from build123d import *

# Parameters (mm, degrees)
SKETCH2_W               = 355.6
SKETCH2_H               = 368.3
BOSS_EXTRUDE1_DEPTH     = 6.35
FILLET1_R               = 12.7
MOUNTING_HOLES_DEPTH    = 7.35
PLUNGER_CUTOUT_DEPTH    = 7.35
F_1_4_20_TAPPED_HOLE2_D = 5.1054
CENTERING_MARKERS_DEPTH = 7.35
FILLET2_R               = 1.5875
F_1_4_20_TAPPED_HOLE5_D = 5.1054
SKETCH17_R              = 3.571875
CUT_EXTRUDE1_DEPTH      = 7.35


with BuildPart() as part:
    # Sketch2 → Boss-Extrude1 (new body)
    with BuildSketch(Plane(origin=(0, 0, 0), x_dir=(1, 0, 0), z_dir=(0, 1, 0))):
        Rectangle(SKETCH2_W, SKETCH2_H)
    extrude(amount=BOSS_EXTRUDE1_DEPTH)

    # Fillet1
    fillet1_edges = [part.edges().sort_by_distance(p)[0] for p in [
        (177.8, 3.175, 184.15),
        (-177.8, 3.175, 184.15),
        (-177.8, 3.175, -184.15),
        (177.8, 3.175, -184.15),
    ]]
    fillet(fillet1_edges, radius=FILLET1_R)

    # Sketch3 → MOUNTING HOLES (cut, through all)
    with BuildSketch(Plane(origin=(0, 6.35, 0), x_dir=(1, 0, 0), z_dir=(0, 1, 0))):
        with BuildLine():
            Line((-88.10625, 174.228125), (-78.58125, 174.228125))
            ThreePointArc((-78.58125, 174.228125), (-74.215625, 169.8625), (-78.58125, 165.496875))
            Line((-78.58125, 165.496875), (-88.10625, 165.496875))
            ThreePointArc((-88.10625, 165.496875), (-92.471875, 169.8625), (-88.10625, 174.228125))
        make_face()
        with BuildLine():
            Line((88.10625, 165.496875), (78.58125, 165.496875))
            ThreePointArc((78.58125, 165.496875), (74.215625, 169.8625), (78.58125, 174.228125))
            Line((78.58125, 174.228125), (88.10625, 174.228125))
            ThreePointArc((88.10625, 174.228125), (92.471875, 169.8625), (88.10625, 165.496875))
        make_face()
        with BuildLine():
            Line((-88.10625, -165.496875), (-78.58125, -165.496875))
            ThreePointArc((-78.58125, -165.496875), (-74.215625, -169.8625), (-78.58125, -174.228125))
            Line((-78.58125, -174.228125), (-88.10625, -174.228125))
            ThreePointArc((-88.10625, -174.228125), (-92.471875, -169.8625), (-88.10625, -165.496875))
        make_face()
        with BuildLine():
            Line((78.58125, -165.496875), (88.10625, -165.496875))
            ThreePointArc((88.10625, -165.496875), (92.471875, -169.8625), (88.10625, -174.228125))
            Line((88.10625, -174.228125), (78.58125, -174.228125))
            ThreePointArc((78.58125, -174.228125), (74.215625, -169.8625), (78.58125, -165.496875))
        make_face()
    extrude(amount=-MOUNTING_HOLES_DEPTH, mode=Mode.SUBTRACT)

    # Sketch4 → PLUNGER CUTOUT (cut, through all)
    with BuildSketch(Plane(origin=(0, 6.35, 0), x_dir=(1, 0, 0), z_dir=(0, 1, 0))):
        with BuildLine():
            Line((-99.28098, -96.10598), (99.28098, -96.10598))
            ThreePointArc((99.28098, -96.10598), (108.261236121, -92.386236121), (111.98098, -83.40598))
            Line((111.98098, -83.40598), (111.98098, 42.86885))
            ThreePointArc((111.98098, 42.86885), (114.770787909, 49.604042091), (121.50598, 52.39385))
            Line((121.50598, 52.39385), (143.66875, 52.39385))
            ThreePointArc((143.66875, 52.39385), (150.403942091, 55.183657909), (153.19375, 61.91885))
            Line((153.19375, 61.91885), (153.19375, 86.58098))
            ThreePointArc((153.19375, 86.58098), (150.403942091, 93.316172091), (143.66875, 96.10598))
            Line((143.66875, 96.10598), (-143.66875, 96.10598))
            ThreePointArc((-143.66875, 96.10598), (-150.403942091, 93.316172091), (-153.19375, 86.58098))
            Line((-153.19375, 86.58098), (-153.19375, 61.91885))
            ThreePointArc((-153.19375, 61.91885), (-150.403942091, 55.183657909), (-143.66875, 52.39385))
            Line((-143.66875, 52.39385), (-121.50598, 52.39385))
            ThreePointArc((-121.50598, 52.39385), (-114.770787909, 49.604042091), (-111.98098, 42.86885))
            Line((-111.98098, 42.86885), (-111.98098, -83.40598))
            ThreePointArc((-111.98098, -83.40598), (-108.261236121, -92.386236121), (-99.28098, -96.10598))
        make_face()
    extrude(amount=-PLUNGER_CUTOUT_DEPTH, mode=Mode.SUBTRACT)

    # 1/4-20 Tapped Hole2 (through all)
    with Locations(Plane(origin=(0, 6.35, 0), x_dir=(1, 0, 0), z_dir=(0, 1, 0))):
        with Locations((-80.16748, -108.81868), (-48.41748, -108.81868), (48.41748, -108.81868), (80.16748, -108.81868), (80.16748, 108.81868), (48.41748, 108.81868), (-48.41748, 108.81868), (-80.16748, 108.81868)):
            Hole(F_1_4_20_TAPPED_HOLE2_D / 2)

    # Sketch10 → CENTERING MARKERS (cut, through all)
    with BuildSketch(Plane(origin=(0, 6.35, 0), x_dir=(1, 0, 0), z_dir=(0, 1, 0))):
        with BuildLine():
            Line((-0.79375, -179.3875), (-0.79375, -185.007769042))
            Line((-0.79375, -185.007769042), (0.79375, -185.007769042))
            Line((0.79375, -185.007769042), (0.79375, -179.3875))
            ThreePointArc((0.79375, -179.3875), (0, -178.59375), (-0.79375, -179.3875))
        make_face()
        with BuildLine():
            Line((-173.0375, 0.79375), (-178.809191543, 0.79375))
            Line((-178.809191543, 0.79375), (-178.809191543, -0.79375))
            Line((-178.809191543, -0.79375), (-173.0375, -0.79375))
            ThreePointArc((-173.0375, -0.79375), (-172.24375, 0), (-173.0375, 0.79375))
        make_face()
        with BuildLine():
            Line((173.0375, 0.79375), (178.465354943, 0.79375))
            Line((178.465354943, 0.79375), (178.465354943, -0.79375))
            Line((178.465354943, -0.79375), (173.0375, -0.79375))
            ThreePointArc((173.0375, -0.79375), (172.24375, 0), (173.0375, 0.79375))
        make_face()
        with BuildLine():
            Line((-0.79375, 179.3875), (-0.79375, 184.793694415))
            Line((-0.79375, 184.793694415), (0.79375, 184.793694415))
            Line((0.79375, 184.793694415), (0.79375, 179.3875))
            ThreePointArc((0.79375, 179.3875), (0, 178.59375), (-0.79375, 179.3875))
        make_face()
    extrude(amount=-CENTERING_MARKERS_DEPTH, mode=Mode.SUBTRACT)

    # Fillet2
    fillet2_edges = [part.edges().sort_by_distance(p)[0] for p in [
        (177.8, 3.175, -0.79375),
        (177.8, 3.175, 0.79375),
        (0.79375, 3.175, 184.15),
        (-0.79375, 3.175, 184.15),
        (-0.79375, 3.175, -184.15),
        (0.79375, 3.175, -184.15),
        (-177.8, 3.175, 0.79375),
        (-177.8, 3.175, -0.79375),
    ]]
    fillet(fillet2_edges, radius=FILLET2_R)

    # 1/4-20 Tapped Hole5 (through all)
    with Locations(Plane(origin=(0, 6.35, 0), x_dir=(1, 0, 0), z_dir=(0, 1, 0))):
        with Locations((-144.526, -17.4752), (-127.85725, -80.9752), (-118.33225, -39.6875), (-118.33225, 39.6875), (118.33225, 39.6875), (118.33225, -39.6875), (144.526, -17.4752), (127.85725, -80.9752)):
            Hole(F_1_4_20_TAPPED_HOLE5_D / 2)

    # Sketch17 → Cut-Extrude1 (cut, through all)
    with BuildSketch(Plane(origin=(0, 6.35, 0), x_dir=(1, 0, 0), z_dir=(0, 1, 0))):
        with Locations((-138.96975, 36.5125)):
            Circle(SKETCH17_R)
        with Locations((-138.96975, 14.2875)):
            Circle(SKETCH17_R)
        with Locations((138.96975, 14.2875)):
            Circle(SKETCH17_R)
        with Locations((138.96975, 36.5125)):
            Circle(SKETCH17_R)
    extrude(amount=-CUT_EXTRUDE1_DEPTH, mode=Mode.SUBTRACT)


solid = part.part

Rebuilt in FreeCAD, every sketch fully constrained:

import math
import FreeCAD as App
import Part
import Sketcher
Q = App.Units.Quantity


def edges_at(feature, points):
    """Names of the edges that pass closest to the given points."""
    edges = feature.Shape.Edges
    near = lambda p: min(range(len(edges)), key=lambda i: edges[i].distToShape(Part.Vertex(*p))[0])
    return sorted({f"Edge{near(p) + 1}" for p in points})

doc = App.newDocument("Part")
params = doc.addObject("Spreadsheet::Sheet", "Params")
for row, (alias, value) in enumerate([
    ("sketch1_width", "14 in"),
    ("sketch1_height", "14.5 in"),
    ("pad1_length", "0.25 in"),
    ("fillet_radius", "0.5 in"),
    ("sketch2_radius", "0.171875 in"),
    ("sketch2_width", "0.375 in"),
    ("sketch3_radius", "0.5 in"),
    ("sketch3_radius2", "0.375 in"),
    ("sketch3_width", "11.3125 in"),
    ("sketch4_diameter", "0.201 in"),
    ("hole_diameter", "0.201 in"),
    ("sketch5_radius", "0.03125 in"),
    ("fillet2_radius", "0.0625 in"),
    ("sketch6_diameter", "0.201 in"),
    ("hole2_diameter", "0.201 in"),
    ("sketch7_diameter", "0.28125 in"),
], start=1):
    params.set(f"A{row}", alias)
    params.set(f"B{row}", "=" + value)
    params.setAlias(f"B{row}", alias)

body = doc.addObject("PartDesign::Body", "Body")

# Sketch on XZ plane
sketch1 = body.newObject("Sketcher::SketchObject", "Sketch")
sketch1.AttachmentSupport = (doc.getObject("XZ_Plane"), [""])
sketch1.MapMode = "FlatFace"
sketch1.addGeometry([
    Part.LineSegment(App.Vector(-178, -184, 0), App.Vector(-178, 184, 0)),
    Part.LineSegment(App.Vector(-178, 184, 0), App.Vector(178, 184, 0)),
    Part.LineSegment(App.Vector(178, 184, 0), App.Vector(178, -184, 0)),
    Part.LineSegment(App.Vector(178, -184, 0), App.Vector(-178, -184, 0)),
], False)
sketch1.addConstraint([
    Sketcher.Constraint("Coincident", 0, 2, 1, 1),
    Sketcher.Constraint("Coincident", 1, 2, 2, 1),
    Sketcher.Constraint("Coincident", 2, 2, 3, 1),
    Sketcher.Constraint("Coincident", 3, 2, 0, 1),
    Sketcher.Constraint("Vertical", 0),
    Sketcher.Constraint("Horizontal", 1),
    Sketcher.Constraint("Vertical", 2),
    Sketcher.Constraint("Horizontal", 3),
    Sketcher.Constraint("Symmetric", 0, 2, 2, 2, -1, 1),
    Sketcher.Constraint("DistanceX", 1, 1, 1, 2, Q("14 in")),
    Sketcher.Constraint("DistanceY", 0, 1, 0, 2, Q("14.5 in")),
])
sketch1.setExpression("Constraints[9]", "Params.sketch1_width")
sketch1.setExpression("Constraints[10]", "Params.sketch1_height")
pad1 = body.newObject("PartDesign::Pad", "Pad")
pad1.Profile = sketch1
pad1.setExpression("Length", "Params.pad1_length")
pad1.Reversed = True
doc.recompute()

fillet = body.newObject("PartDesign::Fillet", "Fillet")
fillet.Base = (pad1, edges_at(pad1, [
    (177.8, 3.175, 184.15),
    (-177.8, 3.175, 184.15),
    (-177.8, 3.175, -184.15),
    (177.8, 3.175, -184.15),
]))
fillet.setExpression("Radius", "Params.fillet_radius")

# Sketch on XZ plane
sketch2 = body.newObject("Sketcher::SketchObject", "Sketch001")
sketch2.AttachmentSupport = (doc.getObject("XZ_Plane"), [""])
sketch2.MapMode = "FlatFace"
sketch2.AttachmentOffset = App.Placement(App.Vector(0, 0, -0.25 * 25.4), App.Rotation())
sketch2.addGeometry([
    Part.LineSegment(App.Vector(-78.6, -174.2, 0), App.Vector(-88.1, -174.2, 0)),  # 0
    Part.ArcOfCircle(Part.Circle(App.Vector(-88.1, -169.9, 0), App.Vector(0, 0, 1), 4.4), math.radians(90), math.radians(270)),  # 1
    Part.LineSegment(App.Vector(-88.1, -165.5, 0), App.Vector(-78.6, -165.5, 0)),  # 2
    Part.ArcOfCircle(Part.Circle(App.Vector(-78.6, -169.9, 0), App.Vector(0, 0, 1), 4.4), math.radians(-90), math.radians(90)),  # 3
    Part.LineSegment(App.Vector(78.6, -165.5, 0), App.Vector(88.1, -165.5, 0)),  # 4
    Part.ArcOfCircle(Part.Circle(App.Vector(88.1, -169.9, 0), App.Vector(0, 0, 1), 4.4), math.radians(-90), math.radians(90)),  # 5
    Part.LineSegment(App.Vector(88.1, -174.2, 0), App.Vector(78.6, -174.2, 0)),  # 6
    Part.ArcOfCircle(Part.Circle(App.Vector(78.6, -169.9, 0), App.Vector(0, 0, 1), 4.4), math.radians(90), math.radians(270)),  # 7
    Part.LineSegment(App.Vector(-78.6, 165.5, 0), App.Vector(-88.1, 165.5, 0)),  # 8
    Part.ArcOfCircle(Part.Circle(App.Vector(-88.1, 169.9, 0), App.Vector(0, 0, 1), 4.4), math.radians(90), math.radians(270)),  # 9
    Part.LineSegment(App.Vector(-88.1, 174.2, 0), App.Vector(-78.6, 174.2, 0)),  # 10
    Part.ArcOfCircle(Part.Circle(App.Vector(-78.6, 169.9, 0), App.Vector(0, 0, 1), 4.4), math.radians(-90), math.radians(90)),  # 11
    Part.LineSegment(App.Vector(88.1, 165.5, 0), App.Vector(78.6, 165.5, 0)),  # 12
    Part.ArcOfCircle(Part.Circle(App.Vector(78.6, 169.9, 0), App.Vector(0, 0, 1), 4.4), math.radians(90), math.radians(270)),  # 13
    Part.LineSegment(App.Vector(78.6, 174.2, 0), App.Vector(88.1, 174.2, 0)),  # 14
    Part.ArcOfCircle(Part.Circle(App.Vector(88.1, 169.9, 0), App.Vector(0, 0, 1), 4.4), math.radians(-90), math.radians(90)),  # 15
], False)
sketch2.addConstraint([
    Sketcher.Constraint("Tangent", 0, 2, 1, 2),
    Sketcher.Constraint("Tangent", 1, 1, 2, 1),
    Sketcher.Constraint("Tangent", 2, 2, 3, 2),
    Sketcher.Constraint("Tangent", 3, 1, 0, 1),
    Sketcher.Constraint("Tangent", 4, 2, 5, 2),
    Sketcher.Constraint("Tangent", 5, 1, 6, 1),
    Sketcher.Constraint("Tangent", 6, 2, 7, 2),
    Sketcher.Constraint("Tangent", 7, 1, 4, 1),
    Sketcher.Constraint("Tangent", 8, 2, 9, 2),
    Sketcher.Constraint("Tangent", 9, 1, 10, 1),
    Sketcher.Constraint("Tangent", 10, 2, 11, 2),
    Sketcher.Constraint("Tangent", 11, 1, 8, 1),
    Sketcher.Constraint("Tangent", 12, 2, 13, 2),
    Sketcher.Constraint("Tangent", 13, 1, 14, 1),
    Sketcher.Constraint("Tangent", 14, 2, 15, 2),
    Sketcher.Constraint("Tangent", 15, 1, 12, 1),
    Sketcher.Constraint("Horizontal", 0),
    Sketcher.Constraint("Horizontal", 2),
    Sketcher.Constraint("Horizontal", 4),
    Sketcher.Constraint("Horizontal", 6),
    Sketcher.Constraint("Horizontal", 8),
    Sketcher.Constraint("Horizontal", 10),
    Sketcher.Constraint("Horizontal", 12),
    Sketcher.Constraint("Horizontal", 14),
    Sketcher.Constraint("Equal", 3, 5),
    Sketcher.Constraint("Equal", 7, 9),
    Sketcher.Constraint("Equal", 11, 13),
    Sketcher.Constraint("Symmetric", 5, 3, 9, 3, -1, 1),
    Sketcher.Constraint("Symmetric", 3, 3, 13, 3, -1, 1),
    Sketcher.Constraint("Symmetric", 1, 3, 5, 3, -2),
    Sketcher.Constraint("Vertical", 3, 3, 11, 3),
    Sketcher.Constraint("Vertical", 7, 3, 13, 3),
    Sketcher.Constraint("Vertical", 5, 3, 15, 3),
    Sketcher.Constraint("Radius", 1, Q("0.171875 in")),
    Sketcher.Constraint("DistanceX", 0, 2, 0, 1, Q("0.375 in")),
    Sketcher.Constraint("DistanceX", 1, 3, -1, 1, Q("3.46875 in")),
    Sketcher.Constraint("DistanceY", 1, 3, -1, 1, Q("6.6875 in")),
])
sketch2.setExpression("Constraints[33]", "Params.sketch2_radius")
sketch2.setExpression("Constraints[34]", "Params.sketch2_width")
pocket1 = body.newObject("PartDesign::Pocket", "Pocket")
pocket1.Profile = sketch2
pocket1.Type = "ThroughAll"
pocket1.Reversed = True

# Sketch on XZ plane
sketch3 = body.newObject("Sketcher::SketchObject", "Sketch002")
sketch3.AttachmentSupport = (doc.getObject("XZ_Plane"), [""])
sketch3.MapMode = "FlatFace"
sketch3.AttachmentOffset = App.Placement(App.Vector(0, 0, -0.25 * 25.4), App.Rotation())
sketch3.addGeometry([
    Part.LineSegment(App.Vector(-99, 96, 0), App.Vector(99, 96, 0)),  # 0
    Part.ArcOfCircle(Part.Circle(App.Vector(99, 83, 0), App.Vector(0, 0, 1), 13), math.radians(0), math.radians(90)),  # 1
    Part.LineSegment(App.Vector(112, 83, 0), App.Vector(112, -43, 0)),  # 2
    Part.ArcOfCircle(Part.Circle(App.Vector(122, -43, 0), App.Vector(0, 0, 1), 10), math.radians(180), math.radians(270)),  # 3
    Part.LineSegment(App.Vector(122, -52, 0), App.Vector(144, -52, 0)),  # 4
    Part.ArcOfCircle(Part.Circle(App.Vector(144, -62, 0), App.Vector(0, 0, 1), 10), math.radians(0), math.radians(90)),  # 5
    Part.LineSegment(App.Vector(153, -62, 0), App.Vector(153, -87, 0)),  # 6
    Part.ArcOfCircle(Part.Circle(App.Vector(144, -87, 0), App.Vector(0, 0, 1), 10), math.radians(-90), math.radians(0)),  # 7
    Part.LineSegment(App.Vector(144, -96, 0), App.Vector(-144, -96, 0)),  # 8
    Part.ArcOfCircle(Part.Circle(App.Vector(-144, -87, 0), App.Vector(0, 0, 1), 10), math.radians(180), math.radians(270)),  # 9
    Part.LineSegment(App.Vector(-153, -87, 0), App.Vector(-153, -62, 0)),  # 10
    Part.ArcOfCircle(Part.Circle(App.Vector(-144, -62, 0), App.Vector(0, 0, 1), 10), math.radians(90), math.radians(180)),  # 11
    Part.LineSegment(App.Vector(-144, -52, 0), App.Vector(-122, -52, 0)),  # 12
    Part.ArcOfCircle(Part.Circle(App.Vector(-122, -43, 0), App.Vector(0, 0, 1), 10), math.radians(-90), math.radians(0)),  # 13
    Part.LineSegment(App.Vector(-112, -43, 0), App.Vector(-112, 83, 0)),  # 14
    Part.ArcOfCircle(Part.Circle(App.Vector(-99, 83, 0), App.Vector(0, 0, 1), 13), math.radians(90), math.radians(180)),  # 15
], False)
sketch3.addConstraint([
    Sketcher.Constraint("Tangent", 0, 2, 1, 2),
    Sketcher.Constraint("Tangent", 1, 1, 2, 1),
    Sketcher.Constraint("Tangent", 2, 2, 3, 1),
    Sketcher.Constraint("Tangent", 3, 2, 4, 1),
    Sketcher.Constraint("Tangent", 4, 2, 5, 2),
    Sketcher.Constraint("Tangent", 5, 1, 6, 1),
    Sketcher.Constraint("Tangent", 6, 2, 7, 2),
    Sketcher.Constraint("Tangent", 7, 1, 8, 1),
    Sketcher.Constraint("Tangent", 8, 2, 9, 2),
    Sketcher.Constraint("Tangent", 9, 1, 10, 1),
    Sketcher.Constraint("Tangent", 10, 2, 11, 2),
    Sketcher.Constraint("Tangent", 11, 1, 12, 1),
    Sketcher.Constraint("Tangent", 12, 2, 13, 1),
    Sketcher.Constraint("Tangent", 13, 2, 14, 1),
    Sketcher.Constraint("Tangent", 14, 2, 15, 2),
    Sketcher.Constraint("Tangent", 15, 1, 0, 1),
    Sketcher.Constraint("Horizontal", 0),
    Sketcher.Constraint("Vertical", 2),
    Sketcher.Constraint("Horizontal", 4),
    Sketcher.Constraint("Vertical", 6),
    Sketcher.Constraint("Horizontal", 8),
    Sketcher.Constraint("Vertical", 10),
    Sketcher.Constraint("Horizontal", 12),
    Sketcher.Constraint("Vertical", 14),
    Sketcher.Constraint("Equal", 3, 5),
    Sketcher.Constraint("Equal", 5, 7),
    Sketcher.Constraint("Equal", 7, 9),
    Sketcher.Constraint("Equal", 9, 11),
    Sketcher.Constraint("Equal", 11, 13),
    Sketcher.Constraint("Equal", 1, 15),
    Sketcher.Constraint("Symmetric", 5, 3, 11, 3, -2),
    Sketcher.Constraint("Equal", 4, 12),
    Sketcher.Constraint("Radius", 1, Q("0.5 in")),
    Sketcher.Constraint("Radius", 3, Q("0.375 in")),
    Sketcher.Constraint("DistanceX", 8, 2, 8, 1, Q("11.3125 in")),
    Sketcher.Constraint("DistanceX", 0, 1, 0, 2, Q("7.8174 in")),
    Sketcher.Constraint("DistanceY", -1, 1, 1, 3, Q("3.2837 in")),
    Sketcher.Constraint("DistanceY", 7, 3, -1, 1, Q("3.4087 in")),
    Sketcher.Constraint("DistanceY", 2, 2, 2, 1, 126.27483),
])
sketch3.setExpression("Constraints[32]", "Params.sketch3_radius")
sketch3.setExpression("Constraints[33]", "Params.sketch3_radius2")
sketch3.setExpression("Constraints[34]", "Params.sketch3_width")
pocket2 = body.newObject("PartDesign::Pocket", "Pocket001")
pocket2.Profile = sketch3
pocket2.Type = "ThroughAll"
pocket2.Reversed = True

# Sketch on XZ plane
sketch4 = body.newObject("Sketcher::SketchObject", "Sketch003")
sketch4.AttachmentSupport = (doc.getObject("XZ_Plane"), [""])
sketch4.MapMode = "FlatFace"
sketch4.AttachmentOffset = App.Placement(App.Vector(0, 0, -0.25 * 25.4), App.Rotation())
sketch4.addGeometry([
    Part.Circle(App.Vector(-80.2, 108.8, 0), App.Vector(0, 0, 1), 2.6),  # 0
    Part.Circle(App.Vector(-48.4, 108.8, 0), App.Vector(0, 0, 1), 2.6),  # 1
    Part.Circle(App.Vector(48.4, 108.8, 0), App.Vector(0, 0, 1), 2.6),  # 2
    Part.Circle(App.Vector(80.2, 108.8, 0), App.Vector(0, 0, 1), 2.6),  # 3
    Part.Circle(App.Vector(80.2, -108.8, 0), App.Vector(0, 0, 1), 2.6),  # 4
    Part.Circle(App.Vector(48.4, -108.8, 0), App.Vector(0, 0, 1), 2.6),  # 5
    Part.Circle(App.Vector(-48.4, -108.8, 0), App.Vector(0, 0, 1), 2.6),  # 6
    Part.Circle(App.Vector(-80.2, -108.8, 0), App.Vector(0, 0, 1), 2.6),  # 7
], False)
sketch4.addConstraint([
    Sketcher.Constraint("Equal", 0, 1),
    Sketcher.Constraint("Equal", 1, 2),
    Sketcher.Constraint("Equal", 2, 3),
    Sketcher.Constraint("Equal", 3, 4),
    Sketcher.Constraint("Equal", 4, 5),
    Sketcher.Constraint("Equal", 5, 6),
    Sketcher.Constraint("Equal", 6, 7),
    Sketcher.Constraint("Symmetric", 0, 3, 4, 3, -1, 1),
    Sketcher.Constraint("Symmetric", 1, 3, 5, 3, -1, 1),
    Sketcher.Constraint("Symmetric", 2, 3, 6, 3, -1, 1),
    Sketcher.Constraint("Symmetric", 3, 3, 7, 3, -1, 1),
    Sketcher.Constraint("Symmetric", 1, 3, 2, 3, -2),
    Sketcher.Constraint("Symmetric", 0, 3, 3, 3, -2),
    Sketcher.Constraint("Horizontal", 0, 3, 1, 3),
    Sketcher.Constraint("Diameter", 0, Q("0.201 in")),
    Sketcher.Constraint("DistanceX", 0, 3, 1, 3, Q("1.25 in")),
    Sketcher.Constraint("DistanceX", 0, 3, -1, 1, Q("3.1562 in")),
    Sketcher.Constraint("DistanceY", -1, 1, 0, 3, Q("4.2842 in")),
])
sketch4.setExpression("Constraints[14]", "Params.sketch4_diameter")
doc.recompute()
hole = body.newObject("PartDesign::Hole", "Hole")
hole.Profile = sketch4
hole.ThreadType = "None"
hole.setExpression("Diameter", "Params.hole_diameter")
hole.DepthType = "ThroughAll"
hole.Reversed = True

# Sketch on XZ plane
sketch5 = body.newObject("Sketcher::SketchObject", "Sketch004")
sketch5.AttachmentSupport = (doc.getObject("XZ_Plane"), [""])
sketch5.MapMode = "FlatFace"
sketch5.AttachmentOffset = App.Placement(App.Vector(0, 0, -0.25 * 25.4), App.Rotation())
sketch5.addGeometry([
    Part.LineSegment(App.Vector(-0.8, 179.4, 0), App.Vector(-0.8, 185, 0)),  # 0
    Part.LineSegment(App.Vector(-0.8, 185, 0), App.Vector(0.8, 185, 0)),  # 1
    Part.LineSegment(App.Vector(0.8, 185, 0), App.Vector(0.8, 179.4, 0)),  # 2
    Part.ArcOfCircle(Part.Circle(App.Vector(0, 179.4, 0), App.Vector(0, 0, 1), 0.8), math.radians(180), math.radians(360)),  # 3
    Part.LineSegment(App.Vector(-173, -0.8, 0), App.Vector(-178.8, -0.8, 0)),  # 4
    Part.LineSegment(App.Vector(-178.8, -0.8, 0), App.Vector(-178.8, 0.8, 0)),  # 5
    Part.LineSegment(App.Vector(-178.8, 0.8, 0), App.Vector(-173, 0.8, 0)),  # 6
    Part.ArcOfCircle(Part.Circle(App.Vector(-173, 0, 0), App.Vector(0, 0, 1), 0.8), math.radians(-90), math.radians(90)),  # 7
    Part.LineSegment(App.Vector(178.5, -0.8, 0), App.Vector(173, -0.8, 0)),  # 8
    Part.ArcOfCircle(Part.Circle(App.Vector(173, 0, 0), App.Vector(0, 0, 1), 0.8), math.radians(90), math.radians(270)),  # 9
    Part.LineSegment(App.Vector(173, 0.8, 0), App.Vector(178.5, 0.8, 0)),  # 10
    Part.LineSegment(App.Vector(178.5, 0.8, 0), App.Vector(178.5, -0.8, 0)),  # 11
    Part.LineSegment(App.Vector(-0.8, -184.8, 0), App.Vector(-0.8, -179.4, 0)),  # 12
    Part.ArcOfCircle(Part.Circle(App.Vector(0, -179.4, 0), App.Vector(0, 0, 1), 0.8), math.radians(0), math.radians(180)),  # 13
    Part.LineSegment(App.Vector(0.8, -179.4, 0), App.Vector(0.8, -184.8, 0)),  # 14
    Part.LineSegment(App.Vector(0.8, -184.8, 0), App.Vector(-0.8, -184.8, 0)),  # 15
], False)
sketch5.addConstraint([
    Sketcher.Constraint("Coincident", 0, 2, 1, 1),
    Sketcher.Constraint("Coincident", 1, 2, 2, 1),
    Sketcher.Constraint("Tangent", 2, 2, 3, 2),
    Sketcher.Constraint("Tangent", 3, 1, 0, 1),
    Sketcher.Constraint("Coincident", 4, 2, 5, 1),
    Sketcher.Constraint("Coincident", 5, 2, 6, 1),
    Sketcher.Constraint("Tangent", 6, 2, 7, 2),
    Sketcher.Constraint("Tangent", 7, 1, 4, 1),
    Sketcher.Constraint("Tangent", 8, 2, 9, 2),
    Sketcher.Constraint("Tangent", 9, 1, 10, 1),
    Sketcher.Constraint("Coincident", 10, 2, 11, 1),
    Sketcher.Constraint("Coincident", 11, 2, 8, 1),
    Sketcher.Constraint("Tangent", 12, 2, 13, 2),
    Sketcher.Constraint("Tangent", 13, 1, 14, 1),
    Sketcher.Constraint("Coincident", 14, 2, 15, 1),
    Sketcher.Constraint("Coincident", 15, 2, 12, 1),
    Sketcher.Constraint("Vertical", 0),
    Sketcher.Constraint("Horizontal", 1),
    Sketcher.Constraint("Vertical", 2),
    Sketcher.Constraint("Horizontal", 4),
    Sketcher.Constraint("Vertical", 5),
    Sketcher.Constraint("Horizontal", 6),
    Sketcher.Constraint("Horizontal", 8),
    Sketcher.Constraint("Horizontal", 10),
    Sketcher.Constraint("Vertical", 11),
    Sketcher.Constraint("Vertical", 12),
    Sketcher.Constraint("Vertical", 14),
    Sketcher.Constraint("Horizontal", 15),
    Sketcher.Constraint("Equal", 3, 7),
    Sketcher.Constraint("Equal", 7, 9),
    Sketcher.Constraint("Equal", 9, 13),
    Sketcher.Constraint("Symmetric", 7, 3, 9, 3, -1, 1),
    Sketcher.Constraint("Symmetric", 3, 3, 13, 3, -1, 1),
    Sketcher.Constraint("PointOnObject", 3, 3, -2),
    Sketcher.Constraint("PointOnObject", 7, 3, -1),
    Sketcher.Constraint("Radius", 3, Q("0.03125 in")),
    Sketcher.Constraint("DistanceY", -1, 1, 3, 3, Q("7.0625 in")),
    Sketcher.Constraint("DistanceX", 7, 3, -1, 1, Q("6.8125 in")),
    Sketcher.Constraint("DistanceX", 4, 2, 4, 1, 5.771692),
    Sketcher.Constraint("DistanceY", 0, 1, 0, 2, 5.620269),
    Sketcher.Constraint("DistanceX", 8, 2, 8, 1, 5.427855),
    Sketcher.Constraint("DistanceY", 12, 1, 12, 2, 5.406194),
])
sketch5.setExpression("Constraints[35]", "Params.sketch5_radius")
pocket3 = body.newObject("PartDesign::Pocket", "Pocket002")
pocket3.Profile = sketch5
pocket3.Type = "ThroughAll"
pocket3.Reversed = True
doc.recompute()

fillet2 = body.newObject("PartDesign::Fillet", "Fillet001")
fillet2.Base = (pocket3, edges_at(pocket3, [
    (177.8, 3.175, -0.794),
    (177.8, 3.175, 0.794),
    (0.794, 3.175, 184.15),
    (-0.794, 3.175, 184.15),
    (-0.794, 3.175, -184.15),
    (0.794, 3.175, -184.15),
    (-177.8, 3.175, 0.794),
    (-177.8, 3.175, -0.794),
]))
fillet2.setExpression("Radius", "Params.fillet2_radius")

# Sketch on XZ plane
sketch6 = body.newObject("Sketcher::SketchObject", "Sketch005")
sketch6.AttachmentSupport = (doc.getObject("XZ_Plane"), [""])
sketch6.MapMode = "FlatFace"
sketch6.AttachmentOffset = App.Placement(App.Vector(0, 0, -0.25 * 25.4), App.Rotation())
sketch6.addGeometry([
    Part.Circle(App.Vector(-144.5, 17.5, 0), App.Vector(0, 0, 1), 2.6),  # 0
    Part.Circle(App.Vector(-127.9, 81, 0), App.Vector(0, 0, 1), 2.6),  # 1
    Part.Circle(App.Vector(-118.3, 39.7, 0), App.Vector(0, 0, 1), 2.6),  # 2
    Part.Circle(App.Vector(-118.3, -39.7, 0), App.Vector(0, 0, 1), 2.6),  # 3
    Part.Circle(App.Vector(118.3, -39.7, 0), App.Vector(0, 0, 1), 2.6),  # 4
    Part.Circle(App.Vector(118.3, 39.7, 0), App.Vector(0, 0, 1), 2.6),  # 5
    Part.Circle(App.Vector(144.5, 17.5, 0), App.Vector(0, 0, 1), 2.6),  # 6
    Part.Circle(App.Vector(127.9, 81, 0), App.Vector(0, 0, 1), 2.6),  # 7
], False)
sketch6.addConstraint([
    Sketcher.Constraint("Equal", 0, 1),
    Sketcher.Constraint("Equal", 1, 2),
    Sketcher.Constraint("Equal", 2, 3),
    Sketcher.Constraint("Equal", 3, 4),
    Sketcher.Constraint("Equal", 4, 5),
    Sketcher.Constraint("Equal", 5, 6),
    Sketcher.Constraint("Equal", 6, 7),
    Sketcher.Constraint("Symmetric", 2, 3, 4, 3, -1, 1),
    Sketcher.Constraint("Symmetric", 3, 3, 5, 3, -1, 1),
    Sketcher.Constraint("Symmetric", 3, 3, 4, 3, -2),
    Sketcher.Constraint("Symmetric", 0, 3, 6, 3, -2),
    Sketcher.Constraint("Symmetric", 1, 3, 7, 3, -2),
    Sketcher.Constraint("Diameter", 0, Q("0.201 in")),
    Sketcher.Constraint("DistanceY", 0, 3, 1, 3, Q("2.5 in")),
    Sketcher.Constraint("DistanceX", 0, 3, -1, 1, Q("5.69 in")),
    Sketcher.Constraint("DistanceY", -1, 1, 0, 3, Q("0.688 in")),
    Sketcher.Constraint("DistanceY", -1, 1, 2, 3, Q("1.5625 in")),
    Sketcher.Constraint("DistanceX", 0, 3, 1, 3, Q("0.65625 in")),
    Sketcher.Constraint("DistanceX", 0, 3, 2, 3, Q("1.03125 in")),
])
sketch6.setExpression("Constraints[12]", "Params.sketch6_diameter")
doc.recompute()
hole2 = body.newObject("PartDesign::Hole", "Hole001")
hole2.Profile = sketch6
hole2.ThreadType = "None"
hole2.setExpression("Diameter", "Params.hole2_diameter")
hole2.DepthType = "ThroughAll"
hole2.Reversed = True

# Sketch on XZ plane
sketch7 = body.newObject("Sketcher::SketchObject", "Sketch006")
sketch7.AttachmentSupport = (doc.getObject("XZ_Plane"), [""])
sketch7.MapMode = "FlatFace"
sketch7.AttachmentOffset = App.Placement(App.Vector(0, 0, -0.25 * 25.4), App.Rotation())
sketch7.addGeometry([
    Part.Circle(App.Vector(-139, -36.5, 0), App.Vector(0, 0, 1), 3.6),
    Part.Circle(App.Vector(-139, -14.3, 0), App.Vector(0, 0, 1), 3.6),
    Part.Circle(App.Vector(139, -14.3, 0), App.Vector(0, 0, 1), 3.6),
    Part.Circle(App.Vector(139, -36.5, 0), App.Vector(0, 0, 1), 3.6),
], False)
sketch7.addConstraint([
    Sketcher.Constraint("Equal", 0, 1),
    Sketcher.Constraint("Equal", 1, 2),
    Sketcher.Constraint("Equal", 2, 3),
    Sketcher.Constraint("Symmetric", 1, 3, 2, 3, -2),
    Sketcher.Constraint("Symmetric", 0, 3, 3, 3, -2),
    Sketcher.Constraint("Vertical", 0, 3, 1, 3),
    Sketcher.Constraint("Diameter", 0, Q("0.28125 in")),
    Sketcher.Constraint("DistanceY", 0, 3, -1, 1, Q("1.4375 in")),
    Sketcher.Constraint("DistanceY", 1, 3, -1, 1, Q("0.5625 in")),
    Sketcher.Constraint("DistanceX", 1, 3, 2, 3, Q("10.9425 in")),
])
sketch7.setExpression("Constraints[6]", "Params.sketch7_diameter")
pocket4 = body.newObject("PartDesign::Pocket", "Pocket003")
pocket4.Profile = sketch7
pocket4.Type = "ThroughAll"
pocket4.Reversed = True

doc.recompute()
